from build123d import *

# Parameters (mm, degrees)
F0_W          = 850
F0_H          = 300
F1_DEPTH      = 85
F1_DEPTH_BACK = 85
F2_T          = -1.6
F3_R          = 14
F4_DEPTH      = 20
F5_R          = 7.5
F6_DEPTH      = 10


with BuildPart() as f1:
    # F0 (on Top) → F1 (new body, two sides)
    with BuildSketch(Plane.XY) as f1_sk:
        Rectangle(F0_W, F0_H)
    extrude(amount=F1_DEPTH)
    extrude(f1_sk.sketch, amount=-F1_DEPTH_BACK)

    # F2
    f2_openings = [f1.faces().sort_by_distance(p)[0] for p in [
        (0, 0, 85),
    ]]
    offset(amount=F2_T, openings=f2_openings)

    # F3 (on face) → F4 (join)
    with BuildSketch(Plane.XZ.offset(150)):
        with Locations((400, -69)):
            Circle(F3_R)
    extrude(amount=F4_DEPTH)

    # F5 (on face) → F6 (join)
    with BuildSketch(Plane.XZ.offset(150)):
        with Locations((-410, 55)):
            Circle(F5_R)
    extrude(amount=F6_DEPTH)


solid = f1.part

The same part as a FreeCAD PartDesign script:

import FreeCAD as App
import Part
import Sketcher

V = App.Vector


def faces_at(feature, points):
    """Names of the faces that lie closest to the given points."""
    faces = feature.Shape.Faces
    near = lambda p: min(range(len(faces)), key=lambda i: faces[i].distToShape(Part.Vertex(*p))[0])
    return sorted({f"Face{near(p) + 1}" for p in points})


def add_polygon(sketch, points):
    """Adds a closed chain of lines whose ends are joined by coincident constraints."""
    first, n = sketch.GeometryCount, len(points)
    for a, b in zip(points, points[1:] + points[:1]):
        sketch.addGeometry(Part.LineSegment(App.Vector(*a, 0), App.Vector(*b, 0)), False)
    for i in range(n):
        sketch.addConstraint(Sketcher.Constraint("Coincident", first + i, 2, first + (i + 1) % n, 1))

doc = App.newDocument("Part")
body = doc.addObject("PartDesign::Body", "Body")

# Sketch on XY plane
sketch1 = body.newObject("Sketcher::SketchObject", "Sketch")
sketch1.AttachmentSupport = (doc.getObject("XY_Plane"), [""])
sketch1.MapMode = "FlatFace"
add_polygon(sketch1, [(-425, 150), (-425, -150), (425, -150), (425, 150)])  # lines 0-3
sketch1.addConstraint([
    Sketcher.Constraint("Vertical", 0),
    Sketcher.Constraint("Horizontal", 1),
    Sketcher.Constraint("Vertical", 2),
    Sketcher.Constraint("Horizontal", 3),
    Sketcher.Constraint("Symmetric", 0, 2, 2, 2, -1, 1),
    Sketcher.Constraint("DistanceX", 1, 1, 1, 2, 850.0),
    Sketcher.Constraint("DistanceY", 0, 2, 0, 1, 300.0),
])
pad1 = body.newObject("PartDesign::Pad", "Pad")
pad1.Profile = sketch1
pad1.Type = "TwoLengths"
pad1.Length = 85
pad1.Length2 = 85
doc.recompute()

thickness = body.newObject("PartDesign::Thickness", "Thickness")
thickness.Base = (pad1, faces_at(pad1, [(0, 0, 85)]))
thickness.Value = 1.6
thickness.Reversed = True
thickness.Join = "Arc"

# Sketch on XZ plane
sketch2 = body.newObject("Sketcher::SketchObject", "Sketch001")
sketch2.AttachmentSupport = (doc.getObject("XZ_Plane"), [""])
sketch2.MapMode = "FlatFace"
sketch2.AttachmentOffset = App.Placement(V(0, 0, 150), App.Rotation())
sketch2.addGeometry(Part.Circle(V(400, -69, 0), V(0, 0, 1), 14), False)
sketch2.addConstraint([
    Sketcher.Constraint("Diameter", 0, 28.0),
    Sketcher.Constraint("DistanceX", -1, 1, 0, 3, 400.0),
    Sketcher.Constraint("DistanceY", 0, 3, -1, 1, 69.0),
])
pad2 = body.newObject("PartDesign::Pad", "Pad001")
pad2.Profile = sketch2
pad2.Length = 20

# Sketch on XZ plane
sketch3 = body.newObject("Sketcher::SketchObject", "Sketch002")
sketch3.AttachmentSupport = (doc.getObject("XZ_Plane"), [""])
sketch3.MapMode = "FlatFace"
sketch3.AttachmentOffset = App.Placement(V(0, 0, 150), App.Rotation())
sketch3.addGeometry(Part.Circle(V(-410, 55, 0), V(0, 0, 1), 8), False)
sketch3.addConstraint([
    Sketcher.Constraint("Diameter", 0, 15.0),
    Sketcher.Constraint("DistanceX", 0, 3, -1, 1, 410.0),
    Sketcher.Constraint("DistanceY", -1, 1, 0, 3, 55.0),
])
pad3 = body.newObject("PartDesign::Pad", "Pad002")
pad3.Profile = sketch3
pad3.Length = 10

doc.recompute()
